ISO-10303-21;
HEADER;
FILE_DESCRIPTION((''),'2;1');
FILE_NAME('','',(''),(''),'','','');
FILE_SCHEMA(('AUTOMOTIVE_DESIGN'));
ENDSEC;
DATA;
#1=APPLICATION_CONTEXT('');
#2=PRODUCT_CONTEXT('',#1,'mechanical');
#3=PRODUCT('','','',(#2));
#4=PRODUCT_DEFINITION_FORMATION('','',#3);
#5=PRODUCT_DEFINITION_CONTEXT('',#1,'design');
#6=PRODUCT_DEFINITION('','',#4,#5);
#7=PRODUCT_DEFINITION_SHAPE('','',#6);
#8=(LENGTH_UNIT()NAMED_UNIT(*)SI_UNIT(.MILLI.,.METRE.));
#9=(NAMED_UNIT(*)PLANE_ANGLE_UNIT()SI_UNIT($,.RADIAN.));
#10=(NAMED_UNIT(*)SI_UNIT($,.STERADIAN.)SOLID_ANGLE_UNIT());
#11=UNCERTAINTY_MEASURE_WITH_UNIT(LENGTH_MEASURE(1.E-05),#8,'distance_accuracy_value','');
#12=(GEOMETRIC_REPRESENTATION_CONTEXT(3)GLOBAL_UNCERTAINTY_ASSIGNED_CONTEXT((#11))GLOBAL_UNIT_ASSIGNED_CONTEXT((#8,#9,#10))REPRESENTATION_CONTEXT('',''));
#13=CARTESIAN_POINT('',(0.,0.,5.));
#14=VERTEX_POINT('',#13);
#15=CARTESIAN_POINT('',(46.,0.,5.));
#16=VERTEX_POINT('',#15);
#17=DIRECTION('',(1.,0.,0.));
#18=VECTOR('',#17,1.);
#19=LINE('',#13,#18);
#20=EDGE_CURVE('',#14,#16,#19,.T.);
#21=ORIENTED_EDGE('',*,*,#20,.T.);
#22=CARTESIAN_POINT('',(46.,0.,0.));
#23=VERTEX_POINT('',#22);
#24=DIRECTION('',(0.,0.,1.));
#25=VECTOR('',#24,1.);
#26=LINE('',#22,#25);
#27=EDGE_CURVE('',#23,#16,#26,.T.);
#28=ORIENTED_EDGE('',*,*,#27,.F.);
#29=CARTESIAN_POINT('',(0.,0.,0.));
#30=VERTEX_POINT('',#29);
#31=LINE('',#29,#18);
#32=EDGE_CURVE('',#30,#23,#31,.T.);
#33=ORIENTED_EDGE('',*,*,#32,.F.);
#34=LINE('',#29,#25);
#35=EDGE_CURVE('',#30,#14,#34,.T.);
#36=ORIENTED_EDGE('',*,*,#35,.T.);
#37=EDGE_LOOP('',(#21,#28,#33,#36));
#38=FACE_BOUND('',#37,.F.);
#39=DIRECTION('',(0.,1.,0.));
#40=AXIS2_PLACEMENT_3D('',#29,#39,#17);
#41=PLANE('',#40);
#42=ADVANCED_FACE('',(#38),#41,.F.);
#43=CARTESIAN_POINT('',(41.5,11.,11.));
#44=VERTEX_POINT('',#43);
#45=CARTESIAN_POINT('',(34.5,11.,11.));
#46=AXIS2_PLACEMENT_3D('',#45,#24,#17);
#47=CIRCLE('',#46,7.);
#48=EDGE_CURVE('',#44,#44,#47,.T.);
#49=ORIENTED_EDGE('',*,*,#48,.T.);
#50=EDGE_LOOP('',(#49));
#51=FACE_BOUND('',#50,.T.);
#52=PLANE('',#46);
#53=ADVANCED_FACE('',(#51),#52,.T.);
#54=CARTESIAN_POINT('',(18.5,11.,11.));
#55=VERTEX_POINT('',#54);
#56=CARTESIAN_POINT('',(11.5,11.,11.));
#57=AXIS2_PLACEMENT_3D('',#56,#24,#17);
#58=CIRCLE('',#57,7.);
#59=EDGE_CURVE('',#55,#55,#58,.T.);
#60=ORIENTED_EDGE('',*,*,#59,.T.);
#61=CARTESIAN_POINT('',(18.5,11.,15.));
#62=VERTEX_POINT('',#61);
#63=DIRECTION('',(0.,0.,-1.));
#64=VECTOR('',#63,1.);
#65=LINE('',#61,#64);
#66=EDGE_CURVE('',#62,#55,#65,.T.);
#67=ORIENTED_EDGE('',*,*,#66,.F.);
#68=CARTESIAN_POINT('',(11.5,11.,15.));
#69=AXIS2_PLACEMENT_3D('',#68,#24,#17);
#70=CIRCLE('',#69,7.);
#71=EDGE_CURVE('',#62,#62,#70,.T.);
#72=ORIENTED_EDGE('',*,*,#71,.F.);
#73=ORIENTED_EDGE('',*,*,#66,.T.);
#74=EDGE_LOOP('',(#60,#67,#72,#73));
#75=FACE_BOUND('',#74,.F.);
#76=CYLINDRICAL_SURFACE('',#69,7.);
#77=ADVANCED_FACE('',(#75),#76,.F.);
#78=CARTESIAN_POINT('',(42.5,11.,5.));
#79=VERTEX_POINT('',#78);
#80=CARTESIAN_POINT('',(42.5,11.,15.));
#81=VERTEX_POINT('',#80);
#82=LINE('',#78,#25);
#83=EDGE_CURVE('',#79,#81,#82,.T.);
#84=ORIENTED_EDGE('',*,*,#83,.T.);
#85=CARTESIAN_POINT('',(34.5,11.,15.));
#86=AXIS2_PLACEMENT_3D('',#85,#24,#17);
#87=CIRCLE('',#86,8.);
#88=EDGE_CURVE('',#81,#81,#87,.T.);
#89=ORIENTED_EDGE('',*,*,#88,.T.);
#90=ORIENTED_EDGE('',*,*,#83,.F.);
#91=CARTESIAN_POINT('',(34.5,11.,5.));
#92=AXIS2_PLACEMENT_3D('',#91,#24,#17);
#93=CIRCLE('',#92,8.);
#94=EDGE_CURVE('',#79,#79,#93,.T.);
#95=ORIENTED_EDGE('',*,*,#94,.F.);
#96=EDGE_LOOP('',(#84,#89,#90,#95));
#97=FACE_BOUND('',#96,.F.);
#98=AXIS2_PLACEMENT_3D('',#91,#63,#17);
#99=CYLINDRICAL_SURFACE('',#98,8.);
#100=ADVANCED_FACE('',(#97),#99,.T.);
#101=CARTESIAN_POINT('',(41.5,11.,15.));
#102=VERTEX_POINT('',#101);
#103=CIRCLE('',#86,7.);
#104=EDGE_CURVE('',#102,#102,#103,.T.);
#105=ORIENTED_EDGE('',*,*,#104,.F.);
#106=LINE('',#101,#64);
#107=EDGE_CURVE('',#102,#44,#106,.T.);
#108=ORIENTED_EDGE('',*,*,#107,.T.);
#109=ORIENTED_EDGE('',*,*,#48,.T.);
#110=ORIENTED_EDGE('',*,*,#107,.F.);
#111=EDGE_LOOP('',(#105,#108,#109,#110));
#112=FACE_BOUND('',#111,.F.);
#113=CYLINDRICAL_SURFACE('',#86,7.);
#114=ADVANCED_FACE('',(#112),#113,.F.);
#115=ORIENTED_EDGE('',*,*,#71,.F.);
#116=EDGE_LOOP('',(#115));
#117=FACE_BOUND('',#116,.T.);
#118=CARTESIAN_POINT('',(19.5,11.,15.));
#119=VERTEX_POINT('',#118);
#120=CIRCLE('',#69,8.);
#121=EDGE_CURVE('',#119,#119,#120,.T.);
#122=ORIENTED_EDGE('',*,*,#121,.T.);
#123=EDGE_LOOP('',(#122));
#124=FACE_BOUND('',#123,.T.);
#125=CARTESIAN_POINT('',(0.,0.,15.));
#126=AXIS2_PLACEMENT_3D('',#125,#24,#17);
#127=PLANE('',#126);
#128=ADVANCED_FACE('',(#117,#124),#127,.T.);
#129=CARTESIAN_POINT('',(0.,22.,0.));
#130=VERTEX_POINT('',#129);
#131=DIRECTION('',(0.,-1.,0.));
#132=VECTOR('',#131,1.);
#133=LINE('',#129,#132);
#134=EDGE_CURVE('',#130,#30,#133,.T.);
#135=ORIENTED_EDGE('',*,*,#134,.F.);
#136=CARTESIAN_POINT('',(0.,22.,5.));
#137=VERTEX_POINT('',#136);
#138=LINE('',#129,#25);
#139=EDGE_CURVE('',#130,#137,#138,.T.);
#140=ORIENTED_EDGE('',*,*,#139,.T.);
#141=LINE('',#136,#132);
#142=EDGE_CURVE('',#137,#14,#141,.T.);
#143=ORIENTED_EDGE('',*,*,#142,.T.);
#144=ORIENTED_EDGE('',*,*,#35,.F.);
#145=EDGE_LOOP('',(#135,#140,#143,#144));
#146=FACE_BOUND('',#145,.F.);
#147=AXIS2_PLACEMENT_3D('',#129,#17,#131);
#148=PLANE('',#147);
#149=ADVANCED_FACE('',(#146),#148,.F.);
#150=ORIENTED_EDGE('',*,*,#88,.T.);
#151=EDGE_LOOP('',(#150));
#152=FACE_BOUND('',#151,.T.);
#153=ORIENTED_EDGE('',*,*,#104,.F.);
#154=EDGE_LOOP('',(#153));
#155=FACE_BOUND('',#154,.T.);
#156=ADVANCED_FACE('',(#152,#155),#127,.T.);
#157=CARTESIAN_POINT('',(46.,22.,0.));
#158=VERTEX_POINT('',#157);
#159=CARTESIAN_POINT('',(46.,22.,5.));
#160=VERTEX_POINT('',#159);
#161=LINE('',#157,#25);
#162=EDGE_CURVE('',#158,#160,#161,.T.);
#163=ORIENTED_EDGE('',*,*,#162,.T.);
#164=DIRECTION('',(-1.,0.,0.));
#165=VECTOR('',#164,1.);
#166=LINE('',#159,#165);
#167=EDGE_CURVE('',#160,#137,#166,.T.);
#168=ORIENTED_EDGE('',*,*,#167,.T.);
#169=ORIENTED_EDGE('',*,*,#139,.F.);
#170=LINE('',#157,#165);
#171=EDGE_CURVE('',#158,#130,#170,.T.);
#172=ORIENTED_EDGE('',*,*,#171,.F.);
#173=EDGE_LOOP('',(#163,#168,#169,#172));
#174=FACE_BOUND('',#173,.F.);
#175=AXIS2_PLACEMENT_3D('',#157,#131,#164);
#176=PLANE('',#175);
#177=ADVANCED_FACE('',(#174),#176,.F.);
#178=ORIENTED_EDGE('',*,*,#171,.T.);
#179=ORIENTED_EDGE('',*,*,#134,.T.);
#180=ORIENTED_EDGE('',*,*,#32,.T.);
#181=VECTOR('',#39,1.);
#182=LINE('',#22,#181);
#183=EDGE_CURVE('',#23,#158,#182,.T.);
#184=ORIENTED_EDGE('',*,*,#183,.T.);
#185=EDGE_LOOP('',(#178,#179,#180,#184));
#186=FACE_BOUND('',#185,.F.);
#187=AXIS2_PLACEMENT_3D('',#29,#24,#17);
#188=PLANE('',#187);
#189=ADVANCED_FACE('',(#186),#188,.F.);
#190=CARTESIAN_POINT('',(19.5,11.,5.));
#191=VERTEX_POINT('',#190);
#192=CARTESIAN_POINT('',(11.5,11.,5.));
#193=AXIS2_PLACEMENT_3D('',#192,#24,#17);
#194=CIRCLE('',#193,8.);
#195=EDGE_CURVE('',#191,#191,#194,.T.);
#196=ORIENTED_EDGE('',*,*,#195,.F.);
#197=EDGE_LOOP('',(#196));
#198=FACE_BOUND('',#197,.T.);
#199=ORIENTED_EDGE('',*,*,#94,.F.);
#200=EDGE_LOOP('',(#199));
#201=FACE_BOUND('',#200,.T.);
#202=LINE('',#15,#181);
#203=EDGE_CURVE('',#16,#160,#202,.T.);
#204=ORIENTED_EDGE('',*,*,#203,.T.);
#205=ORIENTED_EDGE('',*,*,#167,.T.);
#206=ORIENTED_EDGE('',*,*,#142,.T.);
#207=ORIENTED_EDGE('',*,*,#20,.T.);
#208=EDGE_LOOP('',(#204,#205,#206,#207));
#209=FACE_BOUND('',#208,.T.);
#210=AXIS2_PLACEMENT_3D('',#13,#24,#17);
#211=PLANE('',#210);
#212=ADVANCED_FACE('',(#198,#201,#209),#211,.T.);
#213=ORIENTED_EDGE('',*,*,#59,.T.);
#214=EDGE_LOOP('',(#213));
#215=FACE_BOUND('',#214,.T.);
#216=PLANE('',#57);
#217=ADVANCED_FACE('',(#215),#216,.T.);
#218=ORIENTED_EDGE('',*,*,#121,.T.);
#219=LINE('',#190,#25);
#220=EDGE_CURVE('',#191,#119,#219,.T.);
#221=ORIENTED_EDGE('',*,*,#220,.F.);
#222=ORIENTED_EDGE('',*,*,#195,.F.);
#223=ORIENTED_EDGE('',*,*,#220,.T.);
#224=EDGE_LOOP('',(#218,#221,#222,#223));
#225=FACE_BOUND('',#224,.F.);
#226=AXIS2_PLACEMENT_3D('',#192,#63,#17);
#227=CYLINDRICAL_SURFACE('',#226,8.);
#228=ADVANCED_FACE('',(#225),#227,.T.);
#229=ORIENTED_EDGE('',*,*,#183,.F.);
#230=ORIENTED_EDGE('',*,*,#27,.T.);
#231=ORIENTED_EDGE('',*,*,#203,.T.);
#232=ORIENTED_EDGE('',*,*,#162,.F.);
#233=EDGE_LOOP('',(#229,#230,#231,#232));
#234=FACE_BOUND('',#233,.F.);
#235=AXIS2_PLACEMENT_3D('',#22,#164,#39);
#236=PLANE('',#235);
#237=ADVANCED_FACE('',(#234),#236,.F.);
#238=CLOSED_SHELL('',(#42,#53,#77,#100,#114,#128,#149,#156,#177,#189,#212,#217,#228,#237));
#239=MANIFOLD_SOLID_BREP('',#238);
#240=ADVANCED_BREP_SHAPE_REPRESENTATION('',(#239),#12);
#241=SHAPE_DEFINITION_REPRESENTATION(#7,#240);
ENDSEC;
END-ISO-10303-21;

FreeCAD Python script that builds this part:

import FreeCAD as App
import Part
import Sketcher
from FreeCAD import Vector

doc = App.newDocument("Part")
body = doc.addObject("PartDesign::Body", "Body")

# Sketch on XY plane
sketch1 = doc.addObject("Sketcher::SketchObject", "Sketch")
body.addObject(sketch1)
sketch1.AttachmentSupport = (doc.XY_Plane, [""])
sketch1.MapMode = "FlatFace"
sketch1.addGeometry(Part.LineSegment(Vector(0, 22, 0), Vector(0, 0, 0)), False)
sketch1.addGeometry(Part.LineSegment(Vector(0, 0, 0), Vector(46, 0, 0)), False)
sketch1.addGeometry(Part.LineSegment(Vector(46, 0, 0), Vector(46, 22, 0)), False)
sketch1.addGeometry(Part.LineSegment(Vector(46, 22, 0), Vector(0, 22, 0)), False)
sketch1.addConstraint(Sketcher.Constraint("Coincident", 0, 2, 1, 1))
sketch1.addConstraint(Sketcher.Constraint("Coincident", 1, 2, 2, 1))
sketch1.addConstraint(Sketcher.Constraint("Coincident", 2, 2, 3, 1))
sketch1.addConstraint(Sketcher.Constraint("Coincident", 3, 2, 0, 1))
sketch1.addConstraint(Sketcher.Constraint("Vertical", 0))
sketch1.addConstraint(Sketcher.Constraint("Horizontal", 1))
sketch1.addConstraint(Sketcher.Constraint("Vertical", 2))
sketch1.addConstraint(Sketcher.Constraint("Horizontal", 3))
sketch1.addConstraint(Sketcher.Constraint("Coincident", 0, 2, -1, 1))
sketch1.addConstraint(Sketcher.Constraint("DistanceX", 1, 1, 1, 2, 46.0))
sketch1.addConstraint(Sketcher.Constraint("DistanceY", 0, 2, 0, 1, 22.0))
pad1 = doc.addObject("PartDesign::Pad", "Pad")
body.addObject(pad1)
pad1.Profile = sketch1
pad1.Length = 5

# Sketch on XY plane
sketch2 = doc.addObject("Sketcher::SketchObject", "Sketch001")
body.addObject(sketch2)
sketch2.AttachmentSupport = (doc.XY_Plane, [""])
sketch2.MapMode = "FlatFace"
sketch2.AttachmentOffset = App.Placement(Vector(0, 0, 5), App.Rotation())
sketch2.addGeometry(Part.Circle(Vector(11.5, 11, 0), Vector(0, 0, 1), 8), False)
sketch2.addGeometry(Part.Circle(Vector(34.5, 11, 0), Vector(0, 0, 1), 8), False)
sketch2.addConstraint(Sketcher.Constraint("Equal", 0, 1))
sketch2.addConstraint(Sketcher.Constraint("Horizontal", 0, 3, 1, 3))
sketch2.addConstraint(Sketcher.Constraint("Diameter", 0, 16.0))
sketch2.addConstraint(Sketcher.Constraint("DistanceY", -1, 1, 0, 3, 11.0))
sketch2.addConstraint(Sketcher.Constraint("DistanceX", 0, 3, 1, 3, 23.0))
sketch2.addConstraint(Sketcher.Constraint("DistanceX", -1, 1, 0, 3, 11.5))
pad2 = doc.addObject("PartDesign::Pad", "Pad001")
body.addObject(pad2)
pad2.Profile = sketch2
pad2.Length = 10

# Sketch on XY plane
sketch3 = doc.addObject("Sketcher::SketchObject", "Sketch002")
body.addObject(sketch3)
sketch3.AttachmentSupport = (doc.XY_Plane, [""])
sketch3.MapMode = "FlatFace"
sketch3.AttachmentOffset = App.Placement(Vector(0, 0, 15), App.Rotation())
sketch3.addGeometry(Part.Circle(Vector(11.5, 11, 0), Vector(0, 0, 1), 7), False)
sketch3.addConstraint(Sketcher.Constraint("Diameter", 0, 14.0))
sketch3.addConstraint(Sketcher.Constraint("DistanceY", -1, 1, 0, 3, 11.0))
sketch3.addConstraint(Sketcher.Constraint("DistanceX", -1, 1, 0, 3, 11.5))
pocket1 = doc.addObject("PartDesign::Pocket", "Pocket")
body.addObject(pocket1)
pocket1.Profile = sketch3
pocket1.Length = 4

# Sketch on XY plane
sketch4 = doc.addObject("Sketcher::SketchObject", "Sketch003")
body.addObject(sketch4)
sketch4.AttachmentSupport = (doc.XY_Plane, [""])
sketch4.MapMode = "FlatFace"
sketch4.AttachmentOffset = App.Placement(Vector(0, 0, 15), App.Rotation())
sketch4.addGeometry(Part.Circle(Vector(34.5, 11, 0), Vector(0, 0, 1), 7), False)
sketch4.addConstraint(Sketcher.Constraint("Diameter", 0, 14.0))
sketch4.addConstraint(Sketcher.Constraint("DistanceY", -1, 1, 0, 3, 11.0))
sketch4.addConstraint(Sketcher.Constraint("DistanceX", -1, 1, 0, 3, 34.5))
pocket2 = doc.addObject("PartDesign::Pocket", "Pocket001")
body.addObject(pocket2)
pocket2.Profile = sketch4
pocket2.Length = 4

doc.recompute()
